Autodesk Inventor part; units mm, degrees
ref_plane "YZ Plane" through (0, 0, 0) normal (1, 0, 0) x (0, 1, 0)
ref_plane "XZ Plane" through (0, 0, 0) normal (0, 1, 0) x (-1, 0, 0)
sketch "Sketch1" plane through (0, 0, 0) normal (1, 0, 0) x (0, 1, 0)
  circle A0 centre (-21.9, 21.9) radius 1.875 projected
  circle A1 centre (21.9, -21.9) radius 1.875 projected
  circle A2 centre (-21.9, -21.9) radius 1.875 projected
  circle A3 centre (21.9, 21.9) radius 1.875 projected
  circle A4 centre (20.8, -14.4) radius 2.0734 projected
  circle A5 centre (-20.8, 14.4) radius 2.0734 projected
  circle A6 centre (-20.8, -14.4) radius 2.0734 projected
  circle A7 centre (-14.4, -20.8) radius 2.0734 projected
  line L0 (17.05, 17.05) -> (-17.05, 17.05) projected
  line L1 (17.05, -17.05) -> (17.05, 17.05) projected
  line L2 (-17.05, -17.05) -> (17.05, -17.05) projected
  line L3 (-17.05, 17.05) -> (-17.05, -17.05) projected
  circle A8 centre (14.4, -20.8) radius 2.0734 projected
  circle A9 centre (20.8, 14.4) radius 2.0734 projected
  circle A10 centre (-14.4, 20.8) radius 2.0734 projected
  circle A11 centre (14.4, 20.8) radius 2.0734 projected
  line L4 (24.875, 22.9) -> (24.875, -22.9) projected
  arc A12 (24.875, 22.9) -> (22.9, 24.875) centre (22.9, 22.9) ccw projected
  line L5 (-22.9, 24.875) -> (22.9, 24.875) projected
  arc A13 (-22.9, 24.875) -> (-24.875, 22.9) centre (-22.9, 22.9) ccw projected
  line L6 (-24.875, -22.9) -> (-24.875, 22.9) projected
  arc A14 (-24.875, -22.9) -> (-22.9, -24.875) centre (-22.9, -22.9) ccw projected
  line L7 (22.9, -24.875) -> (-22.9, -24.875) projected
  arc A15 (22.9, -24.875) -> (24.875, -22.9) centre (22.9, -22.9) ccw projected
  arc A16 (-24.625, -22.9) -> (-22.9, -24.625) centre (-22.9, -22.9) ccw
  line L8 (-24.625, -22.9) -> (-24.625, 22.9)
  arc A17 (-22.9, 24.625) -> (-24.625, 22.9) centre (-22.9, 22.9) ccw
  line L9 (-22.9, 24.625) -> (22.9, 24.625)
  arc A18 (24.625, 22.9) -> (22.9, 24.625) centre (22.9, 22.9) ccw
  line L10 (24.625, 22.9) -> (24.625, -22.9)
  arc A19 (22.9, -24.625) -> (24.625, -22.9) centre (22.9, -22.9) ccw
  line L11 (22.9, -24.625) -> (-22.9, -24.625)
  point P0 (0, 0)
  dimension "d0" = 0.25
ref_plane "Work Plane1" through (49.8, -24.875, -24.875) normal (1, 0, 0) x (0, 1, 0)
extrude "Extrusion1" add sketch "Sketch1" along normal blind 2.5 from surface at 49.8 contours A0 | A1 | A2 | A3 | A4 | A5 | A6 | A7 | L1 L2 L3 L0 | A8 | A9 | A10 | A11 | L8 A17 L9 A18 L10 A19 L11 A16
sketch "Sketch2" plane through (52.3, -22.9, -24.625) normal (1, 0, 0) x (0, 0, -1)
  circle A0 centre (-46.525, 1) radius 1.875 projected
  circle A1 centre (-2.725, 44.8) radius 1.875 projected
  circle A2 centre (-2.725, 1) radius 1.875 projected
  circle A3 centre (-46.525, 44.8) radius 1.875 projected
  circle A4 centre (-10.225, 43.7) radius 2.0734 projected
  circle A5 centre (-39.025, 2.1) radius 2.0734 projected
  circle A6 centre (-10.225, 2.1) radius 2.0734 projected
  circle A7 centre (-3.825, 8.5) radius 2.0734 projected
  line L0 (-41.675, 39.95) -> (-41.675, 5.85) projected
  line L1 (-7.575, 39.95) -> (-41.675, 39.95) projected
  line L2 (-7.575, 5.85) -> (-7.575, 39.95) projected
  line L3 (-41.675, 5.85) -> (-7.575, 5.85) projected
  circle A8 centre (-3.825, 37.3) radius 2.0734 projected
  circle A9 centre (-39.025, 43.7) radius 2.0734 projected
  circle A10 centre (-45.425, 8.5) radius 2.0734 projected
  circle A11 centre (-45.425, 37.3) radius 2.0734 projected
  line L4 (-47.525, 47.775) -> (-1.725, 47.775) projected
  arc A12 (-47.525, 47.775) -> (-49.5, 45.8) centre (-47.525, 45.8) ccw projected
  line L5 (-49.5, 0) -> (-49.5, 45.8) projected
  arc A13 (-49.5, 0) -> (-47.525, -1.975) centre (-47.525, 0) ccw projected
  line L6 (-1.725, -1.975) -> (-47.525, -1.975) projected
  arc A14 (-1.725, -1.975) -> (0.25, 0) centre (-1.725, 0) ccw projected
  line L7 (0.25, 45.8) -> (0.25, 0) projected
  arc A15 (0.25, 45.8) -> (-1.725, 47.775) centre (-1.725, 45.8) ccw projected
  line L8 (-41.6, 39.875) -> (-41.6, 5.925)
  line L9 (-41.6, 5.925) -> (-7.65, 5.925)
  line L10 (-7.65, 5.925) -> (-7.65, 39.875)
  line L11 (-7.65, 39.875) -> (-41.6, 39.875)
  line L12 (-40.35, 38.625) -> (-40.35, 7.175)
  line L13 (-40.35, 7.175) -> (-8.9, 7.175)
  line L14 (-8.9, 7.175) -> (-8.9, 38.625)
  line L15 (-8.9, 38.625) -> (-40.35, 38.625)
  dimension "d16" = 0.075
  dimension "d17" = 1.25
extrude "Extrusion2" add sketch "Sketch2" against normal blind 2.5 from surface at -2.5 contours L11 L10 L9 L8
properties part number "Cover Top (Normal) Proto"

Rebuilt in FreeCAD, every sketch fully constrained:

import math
import FreeCAD as App
import Part
import Sketcher

V = App.Vector
Q = App.Units.Quantity


def add_polygon(sketch, points):
    """Adds a closed chain of lines whose ends are joined by coincident constraints."""
    first, n = sketch.GeometryCount, len(points)
    for a, b in zip(points, points[1:] + points[:1]):
        sketch.addGeometry(Part.LineSegment(App.Vector(*a, 0), App.Vector(*b, 0)), False)
    for i in range(n):
        sketch.addConstraint(Sketcher.Constraint("Coincident", first + i, 2, first + (i + 1) % n, 1))

doc = App.newDocument("Part")
body = doc.addObject("PartDesign::Body", "Body")

sketch1 = body.newObject("Sketcher::SketchObject", "Sketch")
sketch1.AttachmentSupport = (doc.getObject("YZ_Plane"), [""])
sketch1.MapMode = "FlatFace"
sketch1.AttachmentOffset = App.Placement(V(0, 0, 49.8), App.Rotation())
sketch1.addGeometry([
    Part.LineSegment(V(-24.625, 22.9, 0), V(-24.625, -22.9, 0)),
    Part.ArcOfCircle(Part.Circle(V(-22.9, -22.9, 0), V(0, 0, 1), 1.725), math.radians(180), math.radians(270)),
    Part.LineSegment(V(-22.9, -24.625, 0), V(22.9, -24.625, 0)),
    Part.ArcOfCircle(Part.Circle(V(22.9, -22.9, 0), V(0, 0, 1), 1.725), math.radians(-90), math.radians(0)),
    Part.LineSegment(V(24.625, -22.9, 0), V(24.625, 22.9, 0)),
    Part.ArcOfCircle(Part.Circle(V(22.9, 22.9, 0), V(0, 0, 1), 1.725), math.radians(0), math.radians(90)),
    Part.LineSegment(V(22.9, 24.625, 0), V(-22.9, 24.625, 0)),
    Part.ArcOfCircle(Part.Circle(V(-22.9, 22.9, 0), V(0, 0, 1), 1.725), math.radians(90), math.radians(180)),
], False)
sketch1.addConstraint([
    Sketcher.Constraint("Tangent", 0, 2, 1, 1),
    Sketcher.Constraint("Tangent", 1, 2, 2, 1),
    Sketcher.Constraint("Tangent", 2, 2, 3, 1),
    Sketcher.Constraint("Tangent", 3, 2, 4, 1),
    Sketcher.Constraint("Tangent", 4, 2, 5, 1),
    Sketcher.Constraint("Tangent", 5, 2, 6, 1),
    Sketcher.Constraint("Tangent", 6, 2, 7, 1),
    Sketcher.Constraint("Tangent", 7, 2, 0, 1),
    Sketcher.Constraint("Vertical", 0),
    Sketcher.Constraint("Horizontal", 2),
    Sketcher.Constraint("Vertical", 4),
    Sketcher.Constraint("Horizontal", 6),
    Sketcher.Constraint("Equal", 1, 3),
    Sketcher.Constraint("Equal", 3, 5),
    Sketcher.Constraint("Equal", 5, 7),
    Sketcher.Constraint("Symmetric", 1, 3, 5, 3, -1, 1),
    Sketcher.Constraint("Equal", 6, 0),
    Sketcher.Constraint("DistanceX", 2, 1, 2, 2, Q("45.8 mm")),
    Sketcher.Constraint("Radius", 1, Q("1.725 mm")),
])
pad1 = body.newObject("PartDesign::Pad", "Pad")
pad1.Profile = sketch1
pad1.Length = 2.5

sketch2 = body.newObject("Sketcher::SketchObject", "Sketch001")
sketch2.AttachmentSupport = (doc.getObject("YZ_Plane"), [""])
sketch2.MapMode = "FlatFace"
sketch2.AttachmentOffset = App.Placement(V(0, 0, 49.8), App.Rotation())
add_polygon(sketch2, [(16.975, -16.975), (16.975, 16.975), (-16.975, 16.975), (-16.975, -16.975)])
add_polygon(sketch2, [(-15.725, 15.725), (15.725, 15.725), (15.725, -15.725), (-15.725, -15.725)])
sketch2.addConstraint([
    Sketcher.Constraint("Vertical", 0),
    Sketcher.Constraint("Horizontal", 1),
    Sketcher.Constraint("Vertical", 2),
    Sketcher.Constraint("Horizontal", 3),
    Sketcher.Constraint("Horizontal", 4),
    Sketcher.Constraint("Vertical", 5),
    Sketcher.Constraint("Horizontal", 6),
    Sketcher.Constraint("Vertical", 7),
    Sketcher.Constraint("Symmetric", 0, 2, 2, 2, -1, 1),
    Sketcher.Constraint("Symmetric", 4, 2, 6, 2, -1, 1),
    Sketcher.Constraint("Equal", 3, 0),
    Sketcher.Constraint("Equal", 6, 5),
    Sketcher.Constraint("DistanceX", 4, 2, 0, 2, Q("1.25 mm")),
    Sketcher.Constraint("DistanceX", 1, 2, 1, 1, Q("33.95 mm")),
])
pad2 = body.newObject("PartDesign::Pad", "Pad001")
pad2.Profile = sketch2
pad2.Length = 2.5
pad2.Reversed = True

doc.recompute()
